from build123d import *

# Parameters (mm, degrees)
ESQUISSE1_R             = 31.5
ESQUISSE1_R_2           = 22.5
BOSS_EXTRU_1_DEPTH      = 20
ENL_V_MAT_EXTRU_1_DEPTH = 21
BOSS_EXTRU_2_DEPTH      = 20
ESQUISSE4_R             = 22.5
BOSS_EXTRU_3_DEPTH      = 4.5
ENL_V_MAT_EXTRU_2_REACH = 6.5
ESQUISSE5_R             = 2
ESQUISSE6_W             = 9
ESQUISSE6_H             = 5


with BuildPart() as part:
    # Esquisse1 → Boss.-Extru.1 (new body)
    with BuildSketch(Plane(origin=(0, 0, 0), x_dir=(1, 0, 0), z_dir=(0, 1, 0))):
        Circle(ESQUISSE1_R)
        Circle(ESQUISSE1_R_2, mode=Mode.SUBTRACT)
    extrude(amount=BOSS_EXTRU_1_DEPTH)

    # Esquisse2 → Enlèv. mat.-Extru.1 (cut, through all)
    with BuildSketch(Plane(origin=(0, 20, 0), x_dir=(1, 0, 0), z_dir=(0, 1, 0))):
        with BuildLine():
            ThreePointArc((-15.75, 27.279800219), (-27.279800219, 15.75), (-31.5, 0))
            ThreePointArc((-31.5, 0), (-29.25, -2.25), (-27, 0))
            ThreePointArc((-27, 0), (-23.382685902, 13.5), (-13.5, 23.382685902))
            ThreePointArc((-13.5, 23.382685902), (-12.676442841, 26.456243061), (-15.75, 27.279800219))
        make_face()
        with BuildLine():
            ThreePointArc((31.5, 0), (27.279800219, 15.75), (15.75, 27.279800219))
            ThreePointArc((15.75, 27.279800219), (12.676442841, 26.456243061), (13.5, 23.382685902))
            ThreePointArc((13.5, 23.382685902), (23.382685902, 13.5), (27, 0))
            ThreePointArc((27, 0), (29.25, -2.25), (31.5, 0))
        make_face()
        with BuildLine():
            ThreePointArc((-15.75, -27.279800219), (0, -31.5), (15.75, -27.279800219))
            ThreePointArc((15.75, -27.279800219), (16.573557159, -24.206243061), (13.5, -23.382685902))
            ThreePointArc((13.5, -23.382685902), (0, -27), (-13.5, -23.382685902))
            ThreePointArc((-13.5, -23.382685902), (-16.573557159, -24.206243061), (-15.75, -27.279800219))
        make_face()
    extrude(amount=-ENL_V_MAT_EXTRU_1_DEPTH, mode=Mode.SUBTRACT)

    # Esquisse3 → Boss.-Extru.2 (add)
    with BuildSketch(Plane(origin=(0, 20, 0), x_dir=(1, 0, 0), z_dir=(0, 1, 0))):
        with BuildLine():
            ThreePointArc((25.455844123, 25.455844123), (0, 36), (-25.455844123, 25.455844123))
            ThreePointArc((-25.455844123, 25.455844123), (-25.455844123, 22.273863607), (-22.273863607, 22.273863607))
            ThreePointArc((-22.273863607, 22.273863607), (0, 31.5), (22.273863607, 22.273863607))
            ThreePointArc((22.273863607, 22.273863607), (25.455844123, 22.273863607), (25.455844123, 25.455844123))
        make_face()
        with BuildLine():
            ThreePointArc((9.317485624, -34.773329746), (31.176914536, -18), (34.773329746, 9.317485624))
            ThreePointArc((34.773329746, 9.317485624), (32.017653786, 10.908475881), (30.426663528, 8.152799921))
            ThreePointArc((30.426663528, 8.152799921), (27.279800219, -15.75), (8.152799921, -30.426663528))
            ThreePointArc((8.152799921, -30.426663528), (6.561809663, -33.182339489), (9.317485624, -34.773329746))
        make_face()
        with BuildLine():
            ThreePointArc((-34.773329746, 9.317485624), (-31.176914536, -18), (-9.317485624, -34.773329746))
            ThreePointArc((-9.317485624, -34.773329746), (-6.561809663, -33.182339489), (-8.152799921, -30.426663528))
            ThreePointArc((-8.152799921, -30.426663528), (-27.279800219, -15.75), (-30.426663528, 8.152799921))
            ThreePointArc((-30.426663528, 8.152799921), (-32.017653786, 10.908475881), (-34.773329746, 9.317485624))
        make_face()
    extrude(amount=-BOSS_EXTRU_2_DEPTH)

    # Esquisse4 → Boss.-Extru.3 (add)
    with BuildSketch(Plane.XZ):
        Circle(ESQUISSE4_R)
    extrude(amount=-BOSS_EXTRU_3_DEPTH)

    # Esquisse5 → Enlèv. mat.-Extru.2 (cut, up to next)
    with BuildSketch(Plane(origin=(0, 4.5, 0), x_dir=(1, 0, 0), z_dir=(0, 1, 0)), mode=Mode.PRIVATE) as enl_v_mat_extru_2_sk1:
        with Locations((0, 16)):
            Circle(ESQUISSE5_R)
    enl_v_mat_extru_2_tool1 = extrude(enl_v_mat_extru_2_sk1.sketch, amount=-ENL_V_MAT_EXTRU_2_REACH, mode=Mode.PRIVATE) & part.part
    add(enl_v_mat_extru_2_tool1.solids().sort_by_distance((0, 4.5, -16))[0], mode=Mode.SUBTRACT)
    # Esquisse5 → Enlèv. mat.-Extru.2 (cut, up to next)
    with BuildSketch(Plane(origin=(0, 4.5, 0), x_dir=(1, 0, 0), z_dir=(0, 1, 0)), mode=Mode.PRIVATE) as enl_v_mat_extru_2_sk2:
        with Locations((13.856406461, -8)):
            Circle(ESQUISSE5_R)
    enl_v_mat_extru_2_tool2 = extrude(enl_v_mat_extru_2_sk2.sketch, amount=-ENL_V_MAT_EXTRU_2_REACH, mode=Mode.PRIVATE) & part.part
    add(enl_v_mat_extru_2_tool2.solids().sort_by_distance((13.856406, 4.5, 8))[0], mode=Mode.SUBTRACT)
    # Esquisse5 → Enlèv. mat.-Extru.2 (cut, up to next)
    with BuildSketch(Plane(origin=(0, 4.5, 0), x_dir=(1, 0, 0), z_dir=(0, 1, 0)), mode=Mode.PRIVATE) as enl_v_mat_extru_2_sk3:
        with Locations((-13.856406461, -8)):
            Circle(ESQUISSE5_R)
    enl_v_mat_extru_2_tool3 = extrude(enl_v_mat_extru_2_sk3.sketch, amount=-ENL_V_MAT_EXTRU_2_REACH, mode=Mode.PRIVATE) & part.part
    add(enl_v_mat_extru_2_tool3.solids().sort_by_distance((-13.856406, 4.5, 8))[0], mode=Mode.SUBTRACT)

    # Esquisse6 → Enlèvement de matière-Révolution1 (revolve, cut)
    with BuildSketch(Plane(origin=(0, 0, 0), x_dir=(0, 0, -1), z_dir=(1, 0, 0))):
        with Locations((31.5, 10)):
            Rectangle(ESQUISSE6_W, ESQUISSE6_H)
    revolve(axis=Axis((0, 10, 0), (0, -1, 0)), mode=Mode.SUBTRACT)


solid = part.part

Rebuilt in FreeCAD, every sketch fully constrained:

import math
import FreeCAD as App
import Part
import Sketcher

V = App.Vector
Q = App.Units.Quantity

doc = App.newDocument("Part")
body = doc.addObject("PartDesign::Body", "Body")

sketch1 = body.newObject("Sketcher::SketchObject", "Sketch")
sketch1.AttachmentSupport = (doc.getObject("XZ_Plane"), [""])
sketch1.MapMode = "FlatFace"
sketch1.addGeometry(Part.Circle(V(0, 0, 0), V(0, 0, 1), 32), False)
sketch1.addGeometry(Part.Circle(V(0, 0, 0), V(0, 0, 1), 22), False)
sketch1.addConstraint(Sketcher.Constraint("Coincident", 0, 3, -1, 1))
sketch1.addConstraint(Sketcher.Constraint("Coincident", 1, 3, -1, 1))
sketch1.addConstraint(Sketcher.Constraint("Diameter", 0, Q("63 mm")))
sketch1.addConstraint(Sketcher.Constraint("Diameter", 1, Q("45 mm")))
pad1 = body.newObject("PartDesign::Pad", "Pad")
pad1.Profile = sketch1
pad1.Length = 20
pad1.Reversed = True

sketch2 = body.newObject("Sketcher::SketchObject", "Sketch001")
sketch2.AttachmentSupport = (doc.getObject("XZ_Plane"), [""])
sketch2.MapMode = "FlatFace"
sketch2.AttachmentOffset = App.Placement(V(0, 0, -20), App.Rotation())
sketch2.addGeometry(Part.ArcOfCircle(Part.Circle(V(0, 0, 0), V(0, 0, 1), 31.5), math.radians(180), math.radians(240)), False)
sketch2.addGeometry(Part.ArcOfCircle(Part.Circle(V(-29.2, 0, 0), V(0, 0, 1), 2.2), math.radians(0), math.radians(180)), False)
sketch2.addGeometry(Part.ArcOfCircle(Part.Circle(V(0, 0, 0), V(0, 0, 1), 27), math.radians(180), math.radians(240)), False)
sketch2.addGeometry(Part.ArcOfCircle(Part.Circle(V(-14.6, -25.3, 0), V(0, 0, 1), 2.2), math.radians(-120), math.radians(60)), False)
sketch2.addGeometry(Part.ArcOfCircle(Part.Circle(V(0, 0, 0), V(0, 0, 1), 31.5), math.radians(-60), math.radians(0)), False)
sketch2.addGeometry(Part.ArcOfCircle(Part.Circle(V(14.6, -25.3, 0), V(0, 0, 1), 2.2), math.radians(120), math.radians(300)), False)
sketch2.addGeometry(Part.ArcOfCircle(Part.Circle(V(0, 0, 0), V(0, 0, 1), 27), math.radians(-60), math.radians(0)), False)
sketch2.addGeometry(Part.ArcOfCircle(Part.Circle(V(29.2, 0, 0), V(0, 0, 1), 2.2), math.radians(0), math.radians(180)), False)
sketch2.addGeometry(Part.ArcOfCircle(Part.Circle(V(0, 0, 0), V(0, 0, 1), 31.5), math.radians(60), math.radians(120)), False)
sketch2.addGeometry(Part.ArcOfCircle(Part.Circle(V(14.6, 25.3, 0), V(0, 0, 1), 2.2), math.radians(-120), math.radians(60)), False)
sketch2.addGeometry(Part.ArcOfCircle(Part.Circle(V(0, 0, 0), V(0, 0, 1), 27), math.radians(60), math.radians(120)), False)
sketch2.addGeometry(Part.ArcOfCircle(Part.Circle(V(-14.6, 25.3, 0), V(0, 0, 1), 2.2), math.radians(120), math.radians(300)), False)
sketch2.addConstraint(Sketcher.Constraint("Tangent", 0, 1, 1, 2))
sketch2.addConstraint(Sketcher.Constraint("Tangent", 1, 1, 2, 1))
sketch2.addConstraint(Sketcher.Constraint("Tangent", 2, 2, 3, 2))
sketch2.addConstraint(Sketcher.Constraint("Tangent", 3, 1, 0, 2))
sketch2.addConstraint(Sketcher.Constraint("Tangent", 4, 1, 5, 2))
sketch2.addConstraint(Sketcher.Constraint("Tangent", 5, 1, 6, 1))
sketch2.addConstraint(Sketcher.Constraint("Tangent", 6, 2, 7, 2))
sketch2.addConstraint(Sketcher.Constraint("Tangent", 7, 1, 4, 2))
sketch2.addConstraint(Sketcher.Constraint("Tangent", 8, 1, 9, 2))
sketch2.addConstraint(Sketcher.Constraint("Tangent", 9, 1, 10, 1))
sketch2.addConstraint(Sketcher.Constraint("Tangent", 10, 2, 11, 2))
sketch2.addConstraint(Sketcher.Constraint("Tangent", 11, 1, 8, 2))
sketch2.addConstraint(Sketcher.Constraint("Coincident", 0, 3, -1, 1))
sketch2.addConstraint(Sketcher.Constraint("Coincident", 2, 3, -1, 1))
sketch2.addConstraint(Sketcher.Constraint("Coincident", 4, 3, -1, 1))
sketch2.addConstraint(Sketcher.Constraint("Coincident", 6, 3, -1, 1))
sketch2.addConstraint(Sketcher.Constraint("Coincident", 8, 3, -1, 1))
sketch2.addConstraint(Sketcher.Constraint("Coincident", 10, 3, -1, 1))
sketch2.addConstraint(Sketcher.Constraint("Equal", 0, 4))
sketch2.addConstraint(Sketcher.Constraint("Equal", 3, 5))
sketch2.addConstraint(Sketcher.Constraint("Equal", 4, 8))
sketch2.addConstraint(Sketcher.Constraint("Equal", 7, 9))
sketch2.addConstraint(Sketcher.Constraint("PointOnObject", 1, 3, -1))
sketch2.addConstraint(Sketcher.Constraint("PointOnObject", 7, 3, -1))
sketch2.addConstraint(Sketcher.Constraint("Horizontal", 3, 3, 5, 3))
sketch2.addConstraint(Sketcher.Constraint("Horizontal", 9, 3, 11, 3))
sketch2.addConstraint(Sketcher.Constraint("Vertical", 5, 3, 9, 3))
sketch2.addConstraint(Sketcher.Constraint("Radius", 2, Q("27 mm")))
sketch2.addConstraint(Sketcher.Constraint("Radius", 0, Q("31.5 mm")))
sketch2.addConstraint(Sketcher.Constraint("DistanceX", 5, 1, 7, 1, Q("18 mm")))
pocket1 = body.newObject("PartDesign::Pocket", "Pocket")
pocket1.Profile = sketch2
pocket1.Type = "ThroughAll"
pocket1.Reversed = True

sketch3 = body.newObject("Sketcher::SketchObject", "Sketch002")
sketch3.AttachmentSupport = (doc.getObject("XZ_Plane"), [""])
sketch3.MapMode = "FlatFace"
sketch3.AttachmentOffset = App.Placement(V(0, 0, -20), App.Rotation())
sketch3.addGeometry(Part.ArcOfCircle(Part.Circle(V(0, 0, 0), V(0, 0, 1), 36), math.radians(-135), math.radians(-45)), False)
sketch3.addGeometry(Part.ArcOfCircle(Part.Circle(V(-23.9, -23.9, 0), V(0, 0, 1), 2.2), math.radians(45), math.radians(225)), False)
sketch3.addGeometry(Part.ArcOfCircle(Part.Circle(V(0, 0, 0), V(0, 0, 1), 31.5), math.radians(-135), math.radians(-45)), False)
sketch3.addGeometry(Part.ArcOfCircle(Part.Circle(V(23.9, -23.9, 0), V(0, 0, 1), 2.2), math.radians(-45), math.radians(135)), False)
sketch3.addGeometry(Part.ArcOfCircle(Part.Circle(V(0, 0, 0), V(0, 0, 1), 36), math.radians(-15), math.radians(75)), False)
sketch3.addGeometry(Part.ArcOfCircle(Part.Circle(V(32.6, -8.7, 0), V(0, 0, 1), 2.2), math.radians(165), math.radians(345)), False)
sketch3.addGeometry(Part.ArcOfCircle(Part.Circle(V(0, 0, 0), V(0, 0, 1), 31.5), math.radians(-15), math.radians(75)), False)
sketch3.addGeometry(Part.ArcOfCircle(Part.Circle(V(8.7, 32.6, 0), V(0, 0, 1), 2.2), math.radians(75), math.radians(255)), False)
sketch3.addGeometry(Part.ArcOfCircle(Part.Circle(V(0, 0, 0), V(0, 0, 1), 36), math.radians(105), math.radians(195)), False)
sketch3.addGeometry(Part.ArcOfCircle(Part.Circle(V(-8.7, 32.6, 0), V(0, 0, 1), 2.2), math.radians(-75), math.radians(105)), False)
sketch3.addGeometry(Part.ArcOfCircle(Part.Circle(V(0, 0, 0), V(0, 0, 1), 31.5), math.radians(105), math.radians(195)), False)
sketch3.addGeometry(Part.ArcOfCircle(Part.Circle(V(-32.6, -8.7, 0), V(0, 0, 1), 2.2), math.radians(-165), math.radians(15)), False)
sketch3.addConstraint(Sketcher.Constraint("Tangent", 0, 1, 1, 2))
sketch3.addConstraint(Sketcher.Constraint("Tangent", 1, 1, 2, 1))
sketch3.addConstraint(Sketcher.Constraint("Tangent", 2, 2, 3, 2))
sketch3.addConstraint(Sketcher.Constraint("Tangent", 3, 1, 0, 2))
sketch3.addConstraint(Sketcher.Constraint("Tangent", 4, 1, 5, 2))
sketch3.addConstraint(Sketcher.Constraint("Tangent", 5, 1, 6, 1))
sketch3.addConstraint(Sketcher.Constraint("Tangent", 6, 2, 7, 2))
sketch3.addConstraint(Sketcher.Constraint("Tangent", 7, 1, 4, 2))
sketch3.addConstraint(Sketcher.Constraint("Tangent", 8, 1, 9, 2))
sketch3.addConstraint(Sketcher.Constraint("Tangent", 9, 1, 10, 1))
sketch3.addConstraint(Sketcher.Constraint("Tangent", 10, 2, 11, 2))
sketch3.addConstraint(Sketcher.Constraint("Tangent", 11, 1, 8, 2))
sketch3.addConstraint(Sketcher.Constraint("Coincident", 0, 3, -1, 1))
sketch3.addConstraint(Sketcher.Constraint("Coincident", 2, 3, -1, 1))
sketch3.addConstraint(Sketcher.Constraint("Coincident", 4, 3, -1, 1))
sketch3.addConstraint(Sketcher.Constraint("Coincident", 6, 3, -1, 1))
sketch3.addConstraint(Sketcher.Constraint("Coincident", 8, 3, -1, 1))
sketch3.addConstraint(Sketcher.Constraint("Coincident", 10, 3, -1, 1))
sketch3.addConstraint(Sketcher.Constraint("Equal", 0, 4))
sketch3.addConstraint(Sketcher.Constraint("Equal", 3, 5))
sketch3.addConstraint(Sketcher.Constraint("Equal", 4, 8))
sketch3.addConstraint(Sketcher.Constraint("Equal", 7, 9))
sketch3.addConstraint(Sketcher.Constraint("Horizontal", 1, 3, 3, 3))
sketch3.addConstraint(Sketcher.Constraint("Horizontal", 7, 3, 9, 3))
sketch3.addConstraint(Sketcher.Constraint("Horizontal", 5, 3, 11, 3))
sketch3.addConstraint(Sketcher.Constraint("Radius", 0, Q("36 mm")))
sketch3.addConstraint(Sketcher.Constraint("Radius", 2, Q("31.5 mm")))
sketch3.addConstraint(Sketcher.Constraint("DistanceY", 5, 1, -1, 1, Q("8.1528 mm")))
sketch3.addConstraint(Sketcher.Constraint("DistanceX", -1, 1, 6, 2, Q("8.1528 mm")))
sketch3.addConstraint(Sketcher.Constraint("DistanceY", 0, 1, 11, 3, Q("16.720701 mm")))
pad2 = body.newObject("PartDesign::Pad", "Pad001")
pad2.Profile = sketch3
pad2.Length = 20

sketch4 = body.newObject("Sketcher::SketchObject", "Sketch003")
sketch4.AttachmentSupport = (doc.getObject("XZ_Plane"), [""])
sketch4.MapMode = "FlatFace"
sketch4.addGeometry(Part.Circle(V(0, 0, 0), V(0, 0, 1), 22), False)
sketch4.addConstraint(Sketcher.Constraint("Coincident", 0, 3, -1, 1))
sketch4.addConstraint(Sketcher.Constraint("Diameter", 0, Q("45 mm")))
pad3 = body.newObject("PartDesign::Pad", "Pad002")
pad3.Profile = sketch4
pad3.Length = 4.5
pad3.Reversed = True

sketch5 = body.newObject("Sketcher::SketchObject", "Sketch004")
sketch5.AttachmentSupport = (doc.getObject("XZ_Plane"), [""])
sketch5.MapMode = "FlatFace"
sketch5.AttachmentOffset = App.Placement(V(0, 0, -4.5), App.Rotation())
sketch5.addGeometry(Part.Circle(V(0, -16, 0), V(0, 0, 1), 2), False)
sketch5.addConstraint(Sketcher.Constraint("PointOnObject", 0, 3, -2))
sketch5.addConstraint(Sketcher.Constraint("Diameter", 0, Q("4 mm")))
sketch5.addConstraint(Sketcher.Constraint("DistanceY", 0, 3, -1, 1, Q("16 mm")))
pocket2 = body.newObject("PartDesign::Pocket", "Pocket001")
pocket2.Profile = sketch5
pocket2.Type = "UpToFirst"
pocket2.Reversed = True

sketch6 = body.newObject("Sketcher::SketchObject", "Sketch005")
sketch6.AttachmentSupport = (doc.getObject("XZ_Plane"), [""])
sketch6.MapMode = "FlatFace"
sketch6.AttachmentOffset = App.Placement(V(0, 0, -4.5), App.Rotation())
sketch6.addGeometry(Part.Circle(V(13.9, 8, 0), V(0, 0, 1), 2), False)
sketch6.addConstraint(Sketcher.Constraint("Diameter", 0, Q("4 mm")))
sketch6.addConstraint(Sketcher.Constraint("DistanceY", -1, 1, 0, 3, Q("8 mm")))
sketch6.addConstraint(Sketcher.Constraint("DistanceX", -1, 1, 0, 3, Q("13.856406 mm")))
pocket3 = body.newObject("PartDesign::Pocket", "Pocket002")
pocket3.Profile = sketch6
pocket3.Type = "UpToFirst"
pocket3.Reversed = True

sketch7 = body.newObject("Sketcher::SketchObject", "Sketch006")
sketch7.AttachmentSupport = (doc.getObject("XZ_Plane"), [""])
sketch7.MapMode = "FlatFace"
sketch7.AttachmentOffset = App.Placement(V(0, 0, -4.5), App.Rotation())
sketch7.addGeometry(Part.Circle(V(-13.9, 8, 0), V(0, 0, 1), 2), False)
sketch7.addConstraint(Sketcher.Constraint("Diameter", 0, Q("4 mm")))
sketch7.addConstraint(Sketcher.Constraint("DistanceY", -1, 1, 0, 3, Q("8 mm")))
sketch7.addConstraint(Sketcher.Constraint("DistanceX", 0, 3, -1, 1, Q("13.856406 mm")))
pocket4 = body.newObject("PartDesign::Pocket", "Pocket003")
pocket4.Profile = sketch7
pocket4.Type = "UpToFirst"
pocket4.Reversed = True

sketch8 = body.newObject("Sketcher::SketchObject", "Sketch007")
sketch8.AttachmentSupport = (doc.getObject("YZ_Plane"), [""])
sketch8.MapMode = "FlatFace"
sketch8.addGeometry(Part.LineSegment(V(12, -27, 0), V(8, -27, 0)), False)
sketch8.addGeometry(Part.LineSegment(V(8, -27, 0), V(8, -36, 0)), False)
sketch8.addGeometry(Part.LineSegment(V(8, -36, 0), V(12, -36, 0)), False)
sketch8.addGeometry(Part.LineSegment(V(12, -36, 0), V(12, -27, 0)), False)
sketch8.addConstraint(Sketcher.Constraint("Coincident", 0, 2, 1, 1))
sketch8.addConstraint(Sketcher.Constraint("Coincident", 1, 2, 2, 1))
sketch8.addConstraint(Sketcher.Constraint("Coincident", 2, 2, 3, 1))
sketch8.addConstraint(Sketcher.Constraint("Coincident", 3, 2, 0, 1))
sketch8.addConstraint(Sketcher.Constraint("Horizontal", 0))
sketch8.addConstraint(Sketcher.Constraint("Vertical", 1))
sketch8.addConstraint(Sketcher.Constraint("Horizontal", 2))
sketch8.addConstraint(Sketcher.Constraint("Vertical", 3))
sketch8.addConstraint(Sketcher.Constraint("DistanceX", 0, 2, 0, 1, Q("5 mm")))
sketch8.addConstraint(Sketcher.Constraint("DistanceY", 1, 2, 1, 1, Q("9 mm")))
sketch8.addConstraint(Sketcher.Constraint("DistanceY", 0, 2, -1, 1, Q("27 mm")))
sketch8.addConstraint(Sketcher.Constraint("DistanceX", -1, 1, 0, 2, Q("7.5 mm")))
groove = body.newObject("PartDesign::Groove", "Groove")
groove.Profile = sketch8
groove.ReferenceAxis = (sketch8, ["H_Axis"])
groove.Angle = 360

doc.recompute()
